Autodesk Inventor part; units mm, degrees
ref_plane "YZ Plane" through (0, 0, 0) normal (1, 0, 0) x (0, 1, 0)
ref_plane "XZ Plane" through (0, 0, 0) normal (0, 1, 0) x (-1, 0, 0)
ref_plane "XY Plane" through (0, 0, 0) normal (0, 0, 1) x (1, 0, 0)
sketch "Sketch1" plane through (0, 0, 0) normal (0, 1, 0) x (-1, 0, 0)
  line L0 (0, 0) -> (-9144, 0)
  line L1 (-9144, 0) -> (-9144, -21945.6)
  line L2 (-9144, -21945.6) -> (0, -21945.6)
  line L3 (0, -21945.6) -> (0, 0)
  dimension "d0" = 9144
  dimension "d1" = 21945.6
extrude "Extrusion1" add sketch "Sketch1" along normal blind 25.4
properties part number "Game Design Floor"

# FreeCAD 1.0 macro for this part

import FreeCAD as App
import Part
import Sketcher
from FreeCAD import Vector
Q = App.Units.Quantity

doc = App.newDocument("Part")
body = doc.addObject("PartDesign::Body", "Body")

# Sketch on XZ plane
sketch1 = body.newObject("Sketcher::SketchObject", "Sketch")
sketch1.AttachmentSupport = (doc.getObject("XZ_Plane"), [""])
sketch1.MapMode = "FlatFace"
sketch1.addGeometry([
    Part.LineSegment(Vector(0, -21946, 0), Vector(0, 0, 0)),
    Part.LineSegment(Vector(0, 0, 0), Vector(9144, 0, 0)),
    Part.LineSegment(Vector(9144, 0, 0), Vector(9144, -21946, 0)),
    Part.LineSegment(Vector(9144, -21946, 0), Vector(0, -21946, 0)),
], False)
sketch1.addConstraint([
    Sketcher.Constraint("Coincident", 0, 2, 1, 1),
    Sketcher.Constraint("Coincident", 1, 2, 2, 1),
    Sketcher.Constraint("Coincident", 2, 2, 3, 1),
    Sketcher.Constraint("Coincident", 3, 2, 0, 1),
    Sketcher.Constraint("Vertical", 0),
    Sketcher.Constraint("Horizontal", 1),
    Sketcher.Constraint("Vertical", 2),
    Sketcher.Constraint("Horizontal", 3),
    Sketcher.Constraint("Coincident", 0, 2, -1, 1),
    Sketcher.Constraint("DistanceX", 1, 1, 1, 2, Q("360 in")),
    Sketcher.Constraint("DistanceY", 0, 1, 0, 2, Q("864 in")),
])
pad1 = body.newObject("PartDesign::Pad", "Pad")
pad1.Profile = sketch1
pad1.Length = Q("1 in")
pad1.Reversed = True

doc.recompute()
